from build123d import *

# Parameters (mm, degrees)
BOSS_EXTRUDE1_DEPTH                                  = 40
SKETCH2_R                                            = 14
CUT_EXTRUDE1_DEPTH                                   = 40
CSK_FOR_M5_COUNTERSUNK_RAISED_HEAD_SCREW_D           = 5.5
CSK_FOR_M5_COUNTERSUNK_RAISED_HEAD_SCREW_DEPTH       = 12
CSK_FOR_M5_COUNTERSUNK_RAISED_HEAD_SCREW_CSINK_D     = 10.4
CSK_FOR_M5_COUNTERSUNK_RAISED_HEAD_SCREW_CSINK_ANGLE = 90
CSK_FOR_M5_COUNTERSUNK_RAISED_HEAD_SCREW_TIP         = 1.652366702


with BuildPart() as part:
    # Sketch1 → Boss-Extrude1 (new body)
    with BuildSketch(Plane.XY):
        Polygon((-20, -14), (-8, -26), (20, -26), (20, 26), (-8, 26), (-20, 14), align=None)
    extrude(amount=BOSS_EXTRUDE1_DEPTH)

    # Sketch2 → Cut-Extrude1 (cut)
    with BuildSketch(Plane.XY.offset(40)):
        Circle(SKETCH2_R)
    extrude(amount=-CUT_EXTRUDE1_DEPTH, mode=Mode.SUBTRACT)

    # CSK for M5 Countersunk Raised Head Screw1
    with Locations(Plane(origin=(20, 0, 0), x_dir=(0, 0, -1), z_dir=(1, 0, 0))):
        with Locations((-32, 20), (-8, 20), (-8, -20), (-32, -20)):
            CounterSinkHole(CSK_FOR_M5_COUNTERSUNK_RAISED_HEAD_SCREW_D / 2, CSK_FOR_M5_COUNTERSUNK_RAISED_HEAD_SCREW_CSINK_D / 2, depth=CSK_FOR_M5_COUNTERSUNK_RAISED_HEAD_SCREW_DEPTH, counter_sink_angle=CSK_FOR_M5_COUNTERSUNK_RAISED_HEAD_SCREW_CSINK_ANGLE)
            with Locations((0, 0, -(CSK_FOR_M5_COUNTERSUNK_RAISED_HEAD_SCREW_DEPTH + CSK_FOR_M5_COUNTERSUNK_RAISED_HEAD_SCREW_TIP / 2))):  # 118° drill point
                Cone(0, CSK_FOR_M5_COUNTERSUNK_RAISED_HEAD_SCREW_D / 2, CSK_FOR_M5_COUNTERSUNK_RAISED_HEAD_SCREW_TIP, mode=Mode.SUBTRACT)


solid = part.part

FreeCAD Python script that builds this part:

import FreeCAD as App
import Part
import Sketcher

V = App.Vector


def add_polygon(sketch, points):
    """Adds a closed chain of lines whose ends are joined by coincident constraints."""
    first, n = sketch.GeometryCount, len(points)
    for a, b in zip(points, points[1:] + points[:1]):
        sketch.addGeometry(Part.LineSegment(App.Vector(*a, 0), App.Vector(*b, 0)), False)
    for i in range(n):
        sketch.addConstraint(Sketcher.Constraint("Coincident", first + i, 2, first + (i + 1) % n, 1))

doc = App.newDocument("Part")
params = doc.addObject("Spreadsheet::Sheet", "Params")
for row, (alias, value) in enumerate([
    ("sketch1_width", "28 mm"),
    ("sketch1_height", "52 mm"),
    ("pad1_length", "40 mm"),
    ("sketch2_diameter", "28 mm"),
    ("pocket1_length", "40 mm"),
    ("sketch3_diameter", "5.5 mm"),
    ("hole_diameter", "5.5 mm"),
    ("hole_depth", "12 mm"),
    ("hole_csink_diameter", "10.4 mm"),
], start=1):
    params.set(f"A{row}", alias)
    params.set(f"B{row}", "=" + value)
    params.setAlias(f"B{row}", alias)

body = doc.addObject("PartDesign::Body", "Body")

sketch1 = body.newObject("Sketcher::SketchObject", "Sketch")
sketch1.AttachmentSupport = (doc.getObject("XY_Plane"), [""])
sketch1.MapMode = "FlatFace"
add_polygon(sketch1, [(-20, -14), (-8, -26), (20, -26), (20, 26), (-8, 26), (-20, 14)])
sketch1.addConstraint(Sketcher.Constraint("Horizontal", 1))
sketch1.addConstraint(Sketcher.Constraint("Vertical", 2))
sketch1.addConstraint(Sketcher.Constraint("Horizontal", 3))
sketch1.addConstraint(Sketcher.Constraint("Vertical", 5))
sketch1.addConstraint(Sketcher.Constraint("Symmetric", 0, 2, 3, 2, -1))
sketch1.addConstraint(Sketcher.Constraint("Perpendicular", 0, 4))
sketch1.addConstraint(Sketcher.Constraint("Equal", 3, 5))
sketch1.addConstraint(Sketcher.Constraint("Equal", 0, 4))
sketch1.addConstraint(Sketcher.Constraint("DistanceX", 1, 1, 1, 2, 28.0))
sketch1.addConstraint(Sketcher.Constraint("DistanceY", 2, 1, 2, 2, 52.0))
sketch1.addConstraint(Sketcher.Constraint("DistanceX", 0, 2, -1, 1, 8.0))
sketch1.setExpression("Constraints[14]", "Params.sketch1_width")
sketch1.setExpression("Constraints[15]", "Params.sketch1_height")
pad1 = body.newObject("PartDesign::Pad", "Pad")
pad1.Profile = sketch1
pad1.setExpression("Length", "Params.pad1_length")

sketch2 = body.newObject("Sketcher::SketchObject", "Sketch001")
sketch2.AttachmentSupport = (doc.getObject("XY_Plane"), [""])
sketch2.MapMode = "FlatFace"
sketch2.AttachmentOffset = App.Placement(V(0, 0, 40), App.Rotation())
sketch2.addGeometry(Part.Circle(V(0, 0, 0), V(0, 0, 1), 14), False)
sketch2.addConstraint(Sketcher.Constraint("Coincident", 0, 3, -1, 1))
sketch2.addConstraint(Sketcher.Constraint("Diameter", 0, 28.0))
sketch2.setExpression("Constraints[1]", "Params.sketch2_diameter")
pocket1 = body.newObject("PartDesign::Pocket", "Pocket")
pocket1.Profile = sketch2
pocket1.setExpression("Length", "Params.pocket1_length")

sketch3 = body.newObject("Sketcher::SketchObject", "Sketch002")
sketch3.AttachmentSupport = (doc.getObject("YZ_Plane"), [""])
sketch3.MapMode = "FlatFace"
sketch3.AttachmentOffset = App.Placement(V(0, 0, 20), App.Rotation())
sketch3.addGeometry(Part.Circle(V(20, 32, 0), V(0, 0, 1), 2.8), False)
sketch3.addGeometry(Part.Circle(V(20, 8, 0), V(0, 0, 1), 2.8), False)
sketch3.addGeometry(Part.Circle(V(-20, 8, 0), V(0, 0, 1), 2.8), False)
sketch3.addGeometry(Part.Circle(V(-20, 32, 0), V(0, 0, 1), 2.8), False)
sketch3.addConstraint(Sketcher.Constraint("Equal", 0, 1))
sketch3.addConstraint(Sketcher.Constraint("Equal", 1, 2))
sketch3.addConstraint(Sketcher.Constraint("Equal", 2, 3))
sketch3.addConstraint(Sketcher.Constraint("Symmetric", 1, 3, 2, 3, -2))
sketch3.addConstraint(Sketcher.Constraint("Symmetric", 0, 3, 3, 3, -2))
sketch3.addConstraint(Sketcher.Constraint("Vertical", 0, 3, 1, 3))
sketch3.addConstraint(Sketcher.Constraint("Diameter", 0, 5.5))
sketch3.addConstraint(Sketcher.Constraint("DistanceX", -1, 1, 0, 3, 20.0))
sketch3.addConstraint(Sketcher.Constraint("DistanceY", -1, 1, 0, 3, 32.0))
sketch3.addConstraint(Sketcher.Constraint("DistanceY", -1, 1, 1, 3, 8.0))
sketch3.setExpression("Constraints[6]", "Params.sketch3_diameter")
doc.recompute()
hole = body.newObject("PartDesign::Hole", "Hole")
hole.Profile = sketch3
hole.ThreadType = "None"
hole.setExpression("Diameter", "Params.hole_diameter")
hole.DepthType = "Dimension"
hole.setExpression("Depth", "Params.hole_depth")
hole.DrillPoint = "Angled"
hole.DrillPointAngle = 118
hole.HoleCutType = "Countersink"
hole.setExpression("HoleCutDiameter", "Params.hole_csink_diameter")
hole.HoleCutCountersinkAngle = 90

doc.recompute()
